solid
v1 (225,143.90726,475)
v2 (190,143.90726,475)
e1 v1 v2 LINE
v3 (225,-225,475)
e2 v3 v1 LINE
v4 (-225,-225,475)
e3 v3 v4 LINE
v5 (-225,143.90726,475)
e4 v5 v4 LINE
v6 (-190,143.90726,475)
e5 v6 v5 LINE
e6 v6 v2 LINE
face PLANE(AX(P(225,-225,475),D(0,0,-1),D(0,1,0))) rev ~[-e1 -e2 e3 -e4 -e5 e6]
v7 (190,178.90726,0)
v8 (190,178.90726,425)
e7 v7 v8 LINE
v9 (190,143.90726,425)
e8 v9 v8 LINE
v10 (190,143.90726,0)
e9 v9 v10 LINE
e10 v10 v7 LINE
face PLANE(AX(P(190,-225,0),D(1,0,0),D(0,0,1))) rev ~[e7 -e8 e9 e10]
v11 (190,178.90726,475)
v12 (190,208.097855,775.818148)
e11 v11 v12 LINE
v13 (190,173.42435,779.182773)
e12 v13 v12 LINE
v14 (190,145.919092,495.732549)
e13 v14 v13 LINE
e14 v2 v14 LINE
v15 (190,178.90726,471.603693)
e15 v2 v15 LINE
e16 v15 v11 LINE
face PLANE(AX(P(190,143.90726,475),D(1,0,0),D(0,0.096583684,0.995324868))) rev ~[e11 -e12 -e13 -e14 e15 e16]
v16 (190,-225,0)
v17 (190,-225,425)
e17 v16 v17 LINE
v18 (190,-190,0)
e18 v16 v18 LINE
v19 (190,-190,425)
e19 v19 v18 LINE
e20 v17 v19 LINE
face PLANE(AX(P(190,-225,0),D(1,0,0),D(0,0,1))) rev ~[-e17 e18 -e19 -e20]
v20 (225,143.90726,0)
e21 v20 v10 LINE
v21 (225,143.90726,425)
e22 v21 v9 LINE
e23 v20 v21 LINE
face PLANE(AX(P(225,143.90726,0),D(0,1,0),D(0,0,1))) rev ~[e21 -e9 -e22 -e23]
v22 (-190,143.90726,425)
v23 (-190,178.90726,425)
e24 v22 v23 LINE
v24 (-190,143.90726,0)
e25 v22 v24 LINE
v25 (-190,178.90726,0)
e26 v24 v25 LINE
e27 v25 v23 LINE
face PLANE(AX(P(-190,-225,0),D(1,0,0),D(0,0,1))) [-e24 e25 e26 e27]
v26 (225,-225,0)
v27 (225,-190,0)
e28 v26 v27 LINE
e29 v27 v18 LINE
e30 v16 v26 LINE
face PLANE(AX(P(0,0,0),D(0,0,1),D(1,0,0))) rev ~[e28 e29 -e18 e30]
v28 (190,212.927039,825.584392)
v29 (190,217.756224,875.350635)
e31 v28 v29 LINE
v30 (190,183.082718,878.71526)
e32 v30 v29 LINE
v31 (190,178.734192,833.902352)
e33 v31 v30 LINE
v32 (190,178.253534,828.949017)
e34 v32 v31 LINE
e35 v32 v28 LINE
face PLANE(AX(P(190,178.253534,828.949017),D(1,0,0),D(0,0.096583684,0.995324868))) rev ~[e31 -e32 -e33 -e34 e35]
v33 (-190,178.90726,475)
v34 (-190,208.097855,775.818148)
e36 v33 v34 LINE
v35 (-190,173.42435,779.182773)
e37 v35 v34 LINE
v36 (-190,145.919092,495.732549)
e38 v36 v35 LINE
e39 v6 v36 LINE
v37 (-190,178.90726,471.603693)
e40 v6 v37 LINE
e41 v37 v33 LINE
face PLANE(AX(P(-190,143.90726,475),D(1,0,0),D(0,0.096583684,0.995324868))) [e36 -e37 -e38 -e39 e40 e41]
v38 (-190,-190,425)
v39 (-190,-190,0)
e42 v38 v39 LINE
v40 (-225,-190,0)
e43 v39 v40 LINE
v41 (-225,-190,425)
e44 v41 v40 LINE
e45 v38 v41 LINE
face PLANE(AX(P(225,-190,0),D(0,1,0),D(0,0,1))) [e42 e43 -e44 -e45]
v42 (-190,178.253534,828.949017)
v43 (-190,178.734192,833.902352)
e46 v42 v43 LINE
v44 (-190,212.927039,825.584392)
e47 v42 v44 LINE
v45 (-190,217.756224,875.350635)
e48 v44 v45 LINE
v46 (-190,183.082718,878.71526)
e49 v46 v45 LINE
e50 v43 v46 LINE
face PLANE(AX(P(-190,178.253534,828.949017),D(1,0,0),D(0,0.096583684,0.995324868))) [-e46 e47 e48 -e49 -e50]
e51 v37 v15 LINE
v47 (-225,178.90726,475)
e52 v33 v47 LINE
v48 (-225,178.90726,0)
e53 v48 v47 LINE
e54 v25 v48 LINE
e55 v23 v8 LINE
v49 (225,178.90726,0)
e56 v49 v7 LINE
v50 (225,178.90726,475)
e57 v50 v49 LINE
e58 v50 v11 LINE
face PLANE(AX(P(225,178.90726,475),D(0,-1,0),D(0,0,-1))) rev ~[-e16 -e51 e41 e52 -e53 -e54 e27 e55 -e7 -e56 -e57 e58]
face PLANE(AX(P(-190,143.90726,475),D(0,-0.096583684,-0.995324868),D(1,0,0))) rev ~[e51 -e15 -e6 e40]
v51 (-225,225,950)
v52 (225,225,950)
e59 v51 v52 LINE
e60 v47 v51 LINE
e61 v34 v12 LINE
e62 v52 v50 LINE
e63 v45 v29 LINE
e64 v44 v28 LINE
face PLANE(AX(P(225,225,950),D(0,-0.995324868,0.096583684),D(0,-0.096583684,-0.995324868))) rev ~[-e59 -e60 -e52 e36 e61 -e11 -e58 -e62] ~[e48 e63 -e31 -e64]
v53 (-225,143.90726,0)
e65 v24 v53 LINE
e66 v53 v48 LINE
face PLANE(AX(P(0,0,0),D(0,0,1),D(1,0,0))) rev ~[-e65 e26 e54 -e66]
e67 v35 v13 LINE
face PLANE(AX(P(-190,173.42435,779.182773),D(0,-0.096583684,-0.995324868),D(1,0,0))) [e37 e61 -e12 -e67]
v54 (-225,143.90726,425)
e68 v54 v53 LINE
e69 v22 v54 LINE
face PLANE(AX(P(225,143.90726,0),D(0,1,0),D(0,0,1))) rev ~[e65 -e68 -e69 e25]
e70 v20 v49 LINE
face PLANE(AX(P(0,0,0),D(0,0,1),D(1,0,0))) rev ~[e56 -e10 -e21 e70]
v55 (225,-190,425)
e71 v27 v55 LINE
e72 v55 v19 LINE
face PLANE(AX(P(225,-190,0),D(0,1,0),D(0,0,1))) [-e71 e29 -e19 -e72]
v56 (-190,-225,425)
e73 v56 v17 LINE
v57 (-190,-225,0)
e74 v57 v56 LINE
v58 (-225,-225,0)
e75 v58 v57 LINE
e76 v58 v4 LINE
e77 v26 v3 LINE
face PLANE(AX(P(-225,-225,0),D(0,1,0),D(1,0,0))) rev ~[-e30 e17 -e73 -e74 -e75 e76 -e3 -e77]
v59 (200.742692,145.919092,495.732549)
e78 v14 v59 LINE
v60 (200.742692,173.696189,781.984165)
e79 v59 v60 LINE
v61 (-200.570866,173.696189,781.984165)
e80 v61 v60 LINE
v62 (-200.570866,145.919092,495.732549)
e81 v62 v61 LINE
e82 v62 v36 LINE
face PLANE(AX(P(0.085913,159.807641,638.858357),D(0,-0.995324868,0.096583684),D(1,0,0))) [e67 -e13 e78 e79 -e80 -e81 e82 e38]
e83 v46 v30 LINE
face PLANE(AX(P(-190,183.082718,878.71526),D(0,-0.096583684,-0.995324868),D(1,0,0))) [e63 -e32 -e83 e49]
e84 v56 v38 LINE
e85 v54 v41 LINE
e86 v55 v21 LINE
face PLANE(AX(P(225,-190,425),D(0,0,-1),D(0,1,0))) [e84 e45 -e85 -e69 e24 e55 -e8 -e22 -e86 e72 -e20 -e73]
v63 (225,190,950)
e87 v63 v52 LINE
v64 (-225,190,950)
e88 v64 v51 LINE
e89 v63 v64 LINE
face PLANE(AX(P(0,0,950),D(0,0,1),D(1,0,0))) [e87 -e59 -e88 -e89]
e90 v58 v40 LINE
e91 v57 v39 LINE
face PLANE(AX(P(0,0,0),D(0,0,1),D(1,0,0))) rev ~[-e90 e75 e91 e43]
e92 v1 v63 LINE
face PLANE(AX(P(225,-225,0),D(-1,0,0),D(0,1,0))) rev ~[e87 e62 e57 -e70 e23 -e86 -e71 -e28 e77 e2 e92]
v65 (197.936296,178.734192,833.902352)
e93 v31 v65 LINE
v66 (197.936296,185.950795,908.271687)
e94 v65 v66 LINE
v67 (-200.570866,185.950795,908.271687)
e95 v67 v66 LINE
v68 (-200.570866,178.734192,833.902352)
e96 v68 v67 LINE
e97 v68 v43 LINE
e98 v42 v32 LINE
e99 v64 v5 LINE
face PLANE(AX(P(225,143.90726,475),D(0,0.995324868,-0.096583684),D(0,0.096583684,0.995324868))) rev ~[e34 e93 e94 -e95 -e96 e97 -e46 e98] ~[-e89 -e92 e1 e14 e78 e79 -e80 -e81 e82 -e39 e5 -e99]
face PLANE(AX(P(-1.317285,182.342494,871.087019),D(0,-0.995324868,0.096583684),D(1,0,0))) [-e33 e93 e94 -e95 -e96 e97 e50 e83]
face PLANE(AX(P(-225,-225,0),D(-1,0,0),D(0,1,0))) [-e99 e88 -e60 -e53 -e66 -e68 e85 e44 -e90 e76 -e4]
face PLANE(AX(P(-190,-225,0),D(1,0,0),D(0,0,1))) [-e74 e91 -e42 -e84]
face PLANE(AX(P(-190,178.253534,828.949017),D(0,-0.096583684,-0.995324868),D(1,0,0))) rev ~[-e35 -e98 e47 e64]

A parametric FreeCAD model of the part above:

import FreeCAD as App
import Part
import Sketcher

V = App.Vector

doc = App.newDocument("Part")
body = doc.addObject("PartDesign::Body", "Body")

# Sketch on XY plane
sketch1 = doc.addObject("Sketcher::SketchObject", "Sketch")
body.addObject(sketch1)
sketch1.AttachmentSupport = (doc.XY_Plane, [""])
sketch1.MapMode = "FlatFace"
sketch1.addGeometry([
    Part.LineSegment(V(-225, 225, 0), V(-225, -225, 0)),
    Part.LineSegment(V(-225, -225, 0), V(225, -225, 0)),
    Part.LineSegment(V(225, -225, 0), V(225, 225, 0)),
    Part.LineSegment(V(225, 225, 0), V(-225, 225, 0)),
], False)
sketch1.addConstraint([
    Sketcher.Constraint("Coincident", 0, 2, 1, 1),
    Sketcher.Constraint("Coincident", 1, 2, 2, 1),
    Sketcher.Constraint("Coincident", 2, 2, 3, 1),
    Sketcher.Constraint("Coincident", 3, 2, 0, 1),
    Sketcher.Constraint("Vertical", 0),
    Sketcher.Constraint("Horizontal", 1),
    Sketcher.Constraint("Vertical", 2),
    Sketcher.Constraint("Horizontal", 3),
    Sketcher.Constraint("Symmetric", 0, 2, 2, 2, -1, 1),
    Sketcher.Constraint("Equal", 3, 0),
    Sketcher.Constraint("DistanceX", 1, 1, 1, 2, 450.0),
])
pad1 = doc.addObject("PartDesign::Pad", "Pad")
body.addObject(pad1)
pad1.Profile = sketch1
pad1.Length = 950

# Sketch on YZ plane
sketch2 = doc.addObject("Sketcher::SketchObject", "Sketch001")
body.addObject(sketch2)
sketch2.AttachmentSupport = (doc.YZ_Plane, [""])
sketch2.MapMode = "FlatFace"
sketch2.AttachmentOffset = App.Placement(V(0, 0, 225), App.Rotation())
sketch2.addGeometry([
    Part.LineSegment(V(178.90726, 475, 0), V(178.90726, 0, 0)),  # 0
    Part.LineSegment(V(178.90726, 0, 0), V(225, 0, 0)),  # 1
    Part.LineSegment(V(225, 0, 0), V(225, 950, 0)),  # 2
    Part.LineSegment(V(225, 950, 0), V(178.90726, 475, 0)),  # 3
    Part.LineSegment(V(-225, 950, 0), V(-225, 475, 0)),  # 4
    Part.LineSegment(V(-225, 475, 0), V(143.90726, 475, 0)),  # 5
    Part.LineSegment(V(143.90726, 475, 0), V(190, 950, 0)),  # 6
    Part.LineSegment(V(190, 950, 0), V(-225, 950, 0)),  # 7
    Part.LineSegment(V(-190, 425, 0), V(-190, 0, 0)),  # 8
    Part.LineSegment(V(-190, 0, 0), V(143.90726, 0, 0)),  # 9
    Part.LineSegment(V(143.90726, 0, 0), V(143.90726, 425, 0)),  # 10
    Part.LineSegment(V(143.90726, 425, 0), V(-190, 425, 0)),  # 11
], False)
sketch2.addConstraint([
    Sketcher.Constraint("Coincident", 0, 2, 1, 1),
    Sketcher.Constraint("Coincident", 1, 2, 2, 1),
    Sketcher.Constraint("Coincident", 2, 2, 3, 1),
    Sketcher.Constraint("Coincident", 3, 2, 0, 1),
    Sketcher.Constraint("Coincident", 4, 2, 5, 1),
    Sketcher.Constraint("Coincident", 5, 2, 6, 1),
    Sketcher.Constraint("Coincident", 6, 2, 7, 1),
    Sketcher.Constraint("Coincident", 7, 2, 4, 1),
    Sketcher.Constraint("Coincident", 8, 2, 9, 1),
    Sketcher.Constraint("Coincident", 9, 2, 10, 1),
    Sketcher.Constraint("Coincident", 10, 2, 11, 1),
    Sketcher.Constraint("Coincident", 11, 2, 8, 1),
    Sketcher.Constraint("Vertical", 0),
    Sketcher.Constraint("Horizontal", 1),
    Sketcher.Constraint("Vertical", 2),
    Sketcher.Constraint("Vertical", 4),
    Sketcher.Constraint("Horizontal", 5),
    Sketcher.Constraint("Horizontal", 7),
    Sketcher.Constraint("Vertical", 8),
    Sketcher.Constraint("Horizontal", 9),
    Sketcher.Constraint("Vertical", 10),
    Sketcher.Constraint("Horizontal", 11),
    Sketcher.Constraint("Symmetric", 2, 2, 7, 2, -2),
    Sketcher.Constraint("PointOnObject", 0, 2, -1),
    Sketcher.Constraint("PointOnObject", 8, 2, -1),
    Sketcher.Constraint("Parallel", 3, 6),
    Sketcher.Constraint("Horizontal", 3, 2, 4, 2),
    Sketcher.Constraint("Vertical", 5, 2, 9, 2),
    Sketcher.Constraint("Equal", 0, 4),
    Sketcher.Constraint("DistanceX", 7, 2, 7, 1, 415.0),
    Sketcher.Constraint("DistanceY", 0, 2, 0, 1, 475.0),
    Sketcher.Constraint("DistanceY", 8, 2, 8, 1, 425.0),
    Sketcher.Constraint("DistanceX", -1, 1, 1, 2, 225.0),
    Sketcher.Constraint("DistanceX", 8, 2, -1, 1, 190.0),
    Sketcher.Constraint("DistanceX", 1, 1, 1, 2, 46.09274),
])
pocket1 = doc.addObject("PartDesign::Pocket", "Pocket")
body.addObject(pocket1)
pocket1.Profile = sketch2
pocket1.Type = "ThroughAll"

# Sketch on an angled plane
sketch3 = doc.addObject("Sketcher::SketchObject", "Sketch002")
body.addObject(sketch3)
sketch3.Placement = App.Placement(V(0, 96.902067, -9.403119), App.Rotation(V(1, 0, 0), V(0, 0.096583684, 0.995324868), V(0, -0.995324868, 0.096583684), "ZXY"))
sketch3.addGeometry([
    Part.LineSegment(V(-200.570866, 921.98521, 0), V(-200.570866, 847.266556, 0)),  # 0
    Part.LineSegment(V(-200.570866, 847.266556, 0), V(197.936296, 847.266556, 0)),  # 1
    Part.LineSegment(V(197.936296, 847.266556, 0), V(197.936296, 921.98521, 0)),  # 2
    Part.LineSegment(V(197.936296, 921.98521, 0), V(-200.570866, 921.98521, 0)),  # 3
    Part.LineSegment(V(-200.570866, 795.104504, 0), V(-200.570866, 507.508338, 0)),  # 4
    Part.LineSegment(V(-200.570866, 507.508338, 0), V(200.742692, 507.508338, 0)),  # 5
    Part.LineSegment(V(200.742692, 507.508338, 0), V(200.742692, 795.104504, 0)),  # 6
    Part.LineSegment(V(200.742692, 795.104504, 0), V(-200.570866, 795.104504, 0)),  # 7
], False)
sketch3.addConstraint([
    Sketcher.Constraint("Coincident", 0, 2, 1, 1),
    Sketcher.Constraint("Coincident", 1, 2, 2, 1),
    Sketcher.Constraint("Coincident", 2, 2, 3, 1),
    Sketcher.Constraint("Coincident", 3, 2, 0, 1),
    Sketcher.Constraint("Coincident", 4, 2, 5, 1),
    Sketcher.Constraint("Coincident", 5, 2, 6, 1),
    Sketcher.Constraint("Coincident", 6, 2, 7, 1),
    Sketcher.Constraint("Coincident", 7, 2, 4, 1),
    Sketcher.Constraint("Vertical", 0),
    Sketcher.Constraint("Horizontal", 1),
    Sketcher.Constraint("Vertical", 2),
    Sketcher.Constraint("Horizontal", 3),
    Sketcher.Constraint("Vertical", 4),
    Sketcher.Constraint("Horizontal", 5),
    Sketcher.Constraint("Vertical", 6),
    Sketcher.Constraint("Horizontal", 7),
    Sketcher.Constraint("Vertical", 3, 2, 4, 2),
    Sketcher.Constraint("DistanceX", 5, 1, 5, 2, 401.313558),
    Sketcher.Constraint("DistanceX", 1, 1, 1, 2, 398.507163),
    Sketcher.Constraint("DistanceY", 0, 2, 0, 1, 74.718654),
    Sketcher.Constraint("DistanceY", 4, 2, 4, 1, 287.596166),
    Sketcher.Constraint("DistanceY", -1, 1, 2, 2, 921.98521),
    Sketcher.Constraint("DistanceX", -1, 1, 5, 2, 200.742692),
    Sketcher.Constraint("DistanceY", 4, 2, 3, 2, 414.476872),
])
pocket2 = doc.addObject("PartDesign::Pocket", "Pocket001")
body.addObject(pocket2)
pocket2.Profile = sketch3
pocket2.Type = "ThroughAll"
pocket2.Reversed = True

# Sketch on XZ plane
sketch4 = doc.addObject("Sketcher::SketchObject", "Sketch003")
body.addObject(sketch4)
sketch4.AttachmentSupport = (doc.XZ_Plane, [""])
sketch4.MapMode = "FlatFace"
sketch4.AttachmentOffset = App.Placement(V(0, 0, 225), App.Rotation())
sketch4.addGeometry([
    Part.LineSegment(V(-190, 425, 0), V(-190, 0, 0)),
    Part.LineSegment(V(-190, 0, 0), V(190, 0, 0)),
    Part.LineSegment(V(190, 0, 0), V(190, 425, 0)),
    Part.LineSegment(V(190, 425, 0), V(-190, 425, 0)),
], False)
sketch4.addConstraint([
    Sketcher.Constraint("Coincident", 0, 2, 1, 1),
    Sketcher.Constraint("Coincident", 1, 2, 2, 1),
    Sketcher.Constraint("Coincident", 2, 2, 3, 1),
    Sketcher.Constraint("Coincident", 3, 2, 0, 1),
    Sketcher.Constraint("Vertical", 0),
    Sketcher.Constraint("Horizontal", 1),
    Sketcher.Constraint("Vertical", 2),
    Sketcher.Constraint("Horizontal", 3),
    Sketcher.Constraint("Symmetric", 0, 2, 1, 2, -1, 1),
    Sketcher.Constraint("DistanceX", 1, 1, 1, 2, 380.0),
    Sketcher.Constraint("DistanceY", 0, 2, 0, 1, 425.0),
])
pocket3 = doc.addObject("PartDesign::Pocket", "Pocket002")
body.addObject(pocket3)
pocket3.Profile = sketch4
pocket3.Type = "ThroughAll"

# Sketch on an angled plane
sketch5 = doc.addObject("Sketcher::SketchObject", "Sketch004")
body.addObject(sketch5)
sketch5.Placement = App.Placement(V(0, 96.902067, -9.403119), App.Rotation(V(1, 0, 0), V(0, 0.096583684, 0.995324868), V(0, -0.995324868, 0.096583684), "ZXY"))
sketch5.addGeometry([
    Part.LineSegment(V(-190, 792.289954, 0), V(-190, 486.678406, 0)),  # 0
    Part.LineSegment(V(-190, 486.678406, 0), V(190, 486.678406, 0)),  # 1
    Part.LineSegment(V(190, 486.678406, 0), V(190, 792.289954, 0)),  # 2
    Part.LineSegment(V(190, 792.289954, 0), V(-190, 792.289954, 0)),  # 3
    Part.LineSegment(V(-190, 892.289954, 0), V(-190, 842.289954, 0)),  # 4
    Part.LineSegment(V(-190, 842.289954, 0), V(190, 842.289954, 0)),  # 5
    Part.LineSegment(V(190, 842.289954, 0), V(190, 892.289954, 0)),  # 6
    Part.LineSegment(V(190, 892.289954, 0), V(-190, 892.289954, 0)),  # 7
], False)
sketch5.addConstraint([
    Sketcher.Constraint("Coincident", 0, 2, 1, 1),
    Sketcher.Constraint("Coincident", 1, 2, 2, 1),
    Sketcher.Constraint("Coincident", 2, 2, 3, 1),
    Sketcher.Constraint("Coincident", 3, 2, 0, 1),
    Sketcher.Constraint("Coincident", 4, 2, 5, 1),
    Sketcher.Constraint("Coincident", 5, 2, 6, 1),
    Sketcher.Constraint("Coincident", 6, 2, 7, 1),
    Sketcher.Constraint("Coincident", 7, 2, 4, 1),
    Sketcher.Constraint("Vertical", 0),
    Sketcher.Constraint("Horizontal", 1),
    Sketcher.Constraint("Vertical", 2),
    Sketcher.Constraint("Horizontal", 3),
    Sketcher.Constraint("Vertical", 4),
    Sketcher.Constraint("Horizontal", 5),
    Sketcher.Constraint("Vertical", 6),
    Sketcher.Constraint("Horizontal", 7),
    Sketcher.Constraint("Vertical", 3, 2, 4, 2),
    Sketcher.Constraint("Vertical", 2, 2, 5, 2),
    Sketcher.Constraint("DistanceX", 1, 1, 1, 2, 380.0),
    Sketcher.Constraint("DistanceY", 4, 2, 4, 1, 50.0),
    Sketcher.Constraint("DistanceX", 0, 2, -1, 1, 190.0),
    Sketcher.Constraint("DistanceY", 3, 2, 4, 2, 50.0),
    Sketcher.Constraint("DistanceY", 0, 2, 0, 1, 305.611548),
    Sketcher.Constraint("DistanceY", -1, 1, 0, 2, 486.678406),
])
pocket4 = doc.addObject("PartDesign::Pocket", "Pocket003")
body.addObject(pocket4)
pocket4.Profile = sketch5
pocket4.Type = "ThroughAll"

doc.recompute()
